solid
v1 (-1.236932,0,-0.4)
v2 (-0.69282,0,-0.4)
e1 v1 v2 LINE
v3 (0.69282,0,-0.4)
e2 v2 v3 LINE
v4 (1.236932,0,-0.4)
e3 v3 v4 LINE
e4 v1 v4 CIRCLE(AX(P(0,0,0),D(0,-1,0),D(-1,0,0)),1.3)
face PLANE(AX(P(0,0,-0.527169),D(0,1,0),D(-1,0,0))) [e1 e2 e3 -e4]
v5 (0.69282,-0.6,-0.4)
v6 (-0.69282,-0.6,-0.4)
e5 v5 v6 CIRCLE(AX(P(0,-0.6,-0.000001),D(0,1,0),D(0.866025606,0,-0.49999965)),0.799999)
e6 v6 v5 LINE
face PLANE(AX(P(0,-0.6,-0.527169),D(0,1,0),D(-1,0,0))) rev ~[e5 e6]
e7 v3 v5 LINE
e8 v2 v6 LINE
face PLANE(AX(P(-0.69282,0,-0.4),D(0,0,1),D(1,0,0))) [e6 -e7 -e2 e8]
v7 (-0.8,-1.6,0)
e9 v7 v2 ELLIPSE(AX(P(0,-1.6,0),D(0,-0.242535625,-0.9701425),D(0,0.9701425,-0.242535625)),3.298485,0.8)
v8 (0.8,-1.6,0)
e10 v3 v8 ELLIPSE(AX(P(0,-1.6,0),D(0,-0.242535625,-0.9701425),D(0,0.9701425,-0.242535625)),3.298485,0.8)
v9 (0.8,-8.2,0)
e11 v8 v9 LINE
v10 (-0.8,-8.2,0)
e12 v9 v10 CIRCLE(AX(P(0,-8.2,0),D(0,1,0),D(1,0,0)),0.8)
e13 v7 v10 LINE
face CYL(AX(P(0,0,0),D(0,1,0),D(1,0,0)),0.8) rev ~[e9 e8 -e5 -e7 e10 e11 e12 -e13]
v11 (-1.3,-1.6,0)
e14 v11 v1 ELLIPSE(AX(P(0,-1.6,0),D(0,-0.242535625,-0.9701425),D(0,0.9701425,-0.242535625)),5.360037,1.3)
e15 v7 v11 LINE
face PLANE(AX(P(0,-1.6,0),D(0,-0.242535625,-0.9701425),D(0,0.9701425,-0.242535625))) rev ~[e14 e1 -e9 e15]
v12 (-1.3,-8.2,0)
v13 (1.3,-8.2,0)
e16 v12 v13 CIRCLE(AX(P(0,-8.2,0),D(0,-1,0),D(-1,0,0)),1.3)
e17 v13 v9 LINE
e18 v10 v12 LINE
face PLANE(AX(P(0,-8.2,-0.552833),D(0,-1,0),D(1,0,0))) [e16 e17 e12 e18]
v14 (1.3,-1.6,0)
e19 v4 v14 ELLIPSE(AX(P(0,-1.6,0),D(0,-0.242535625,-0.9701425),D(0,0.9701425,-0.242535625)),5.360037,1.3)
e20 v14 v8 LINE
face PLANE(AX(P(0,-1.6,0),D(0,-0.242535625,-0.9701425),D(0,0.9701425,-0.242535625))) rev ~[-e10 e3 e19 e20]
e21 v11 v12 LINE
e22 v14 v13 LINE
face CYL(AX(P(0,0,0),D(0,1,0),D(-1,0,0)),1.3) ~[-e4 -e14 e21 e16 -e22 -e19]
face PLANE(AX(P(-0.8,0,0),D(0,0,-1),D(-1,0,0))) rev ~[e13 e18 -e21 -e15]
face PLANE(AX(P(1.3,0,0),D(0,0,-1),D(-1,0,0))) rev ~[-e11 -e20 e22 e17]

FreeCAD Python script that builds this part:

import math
import FreeCAD as App
import Part
import Sketcher
from FreeCAD import Vector
Q = App.Units.Quantity


def add_polygon(sketch, points):
    """Adds a closed chain of lines whose ends are joined by coincident constraints."""
    first, n = sketch.GeometryCount, len(points)
    for a, b in zip(points, points[1:] + points[:1]):
        sketch.addGeometry(Part.LineSegment(App.Vector(*a, 0), App.Vector(*b, 0)), False)
    for i in range(n):
        sketch.addConstraint(Sketcher.Constraint("Coincident", first + i, 2, first + (i + 1) % n, 1))

doc = App.newDocument("Part")
params = doc.addObject("Spreadsheet::Sheet", "Params")
for row, (alias, value) in enumerate([
    ("sketch1_radius", "0.8 mm"),
    ("sketch1_radius2", "1.3 mm"),
    ("pad1_length", "8.2 mm"),
    ("sketch2_width", "1.6 mm"),
    ("sketch2_height", "0.4 mm"),
    ("pocket1_length", "30 mm"),
    ("sketch3_radius", "0.799999 mm"),
    ("pad2_length", "0.6 mm"),
], start=1):
    params.set(f"A{row}", alias)
    params.set(f"B{row}", "=" + value)
    params.setAlias(f"B{row}", alias)

body = doc.addObject("PartDesign::Body", "Body")

sketch1 = body.newObject("Sketcher::SketchObject", "Sketch")
sketch1.AttachmentSupport = (doc.getObject("XZ_Plane"), [""])
sketch1.MapMode = "FlatFace"
sketch1.addGeometry([
    Part.LineSegment(Vector(1.3, 0, 0), Vector(0.8, 0, 0)),
    Part.ArcOfCircle(Part.Circle(Vector(0, 0, 0), Vector(0, 0, 1), 0.8), math.radians(180), math.radians(360)),
    Part.LineSegment(Vector(-0.8, 0, 0), Vector(-1.3, 0, 0)),
    Part.ArcOfCircle(Part.Circle(Vector(0, 0, 0), Vector(0, 0, 1), 1.3), math.radians(180), math.radians(360)),
], False)
sketch1.addConstraint([
    Sketcher.Constraint("Coincident", 0, 2, 1, 2),
    Sketcher.Constraint("Coincident", 1, 1, 2, 1),
    Sketcher.Constraint("Coincident", 2, 2, 3, 1),
    Sketcher.Constraint("Coincident", 3, 2, 0, 1),
    Sketcher.Constraint("Horizontal", 0),
    Sketcher.Constraint("Horizontal", 2),
    Sketcher.Constraint("Coincident", 1, 3, -1, 1),
    Sketcher.Constraint("Coincident", 3, 3, -1, 1),
    Sketcher.Constraint("PointOnObject", 0, 2, -1),
    Sketcher.Constraint("PointOnObject", 1, 1, -1),
    Sketcher.Constraint("Radius", 1, Q("0.8 mm")),
    Sketcher.Constraint("Radius", 3, Q("1.3 mm")),
])
sketch1.setExpression("Constraints[10]", "Params.sketch1_radius")
sketch1.setExpression("Constraints[11]", "Params.sketch1_radius2")
pad1 = body.newObject("PartDesign::Pad", "Pad")
pad1.Profile = sketch1
pad1.setExpression("Length", "Params.pad1_length")

sketch2 = body.newObject("Sketcher::SketchObject", "Sketch001")
sketch2.AttachmentSupport = (doc.getObject("YZ_Plane"), [""])
sketch2.MapMode = "FlatFace"
add_polygon(sketch2, [(-1.6, 0), (0, -0.4), (0, 0)])
sketch2.addConstraint([
    Sketcher.Constraint("Vertical", 1),
    Sketcher.Constraint("Horizontal", 2),
    Sketcher.Constraint("Coincident", 1, 2, -1, 1),
    Sketcher.Constraint("DistanceX", 2, 2, 2, 1, Q("1.6 mm")),
    Sketcher.Constraint("DistanceY", 1, 1, 1, 2, Q("0.4 mm")),
])
sketch2.setExpression("Constraints[6]", "Params.sketch2_width")
sketch2.setExpression("Constraints[7]", "Params.sketch2_height")
pocket1 = body.newObject("PartDesign::Pocket", "Pocket")
pocket1.Profile = sketch2
pocket1.setExpression("Length", "Params.pocket1_length")
pocket1.Midplane = True

sketch3 = body.newObject("Sketcher::SketchObject", "Sketch002")
sketch3.AttachmentSupport = (doc.getObject("XZ_Plane"), [""])
sketch3.MapMode = "FlatFace"
sketch3.addGeometry([
    Part.LineSegment(Vector(-0.7, -0.4, 0), Vector(0.7, -0.4, 0)),
    Part.ArcOfCircle(Part.Circle(Vector(0, 0, 0), Vector(0, 0, 1), 0.8), math.radians(-150), math.radians(-30)),
], False)
sketch3.addConstraint([
    Sketcher.Constraint("Coincident", 0, 1, 1, 1),
    Sketcher.Constraint("Coincident", 1, 2, 0, 2),
    Sketcher.Constraint("Horizontal", 0),
    Sketcher.Constraint("Coincident", 1, 3, -1, 1),
    Sketcher.Constraint("Radius", 1, Q("0.799999 mm")),
    Sketcher.Constraint("DistanceY", 0, 1, -1, 1, Q("0.4 mm")),
])
sketch3.setExpression("Constraints[4]", "Params.sketch3_radius")
pad2 = body.newObject("PartDesign::Pad", "Pad001")
pad2.Profile = sketch3
pad2.setExpression("Length", "Params.pad2_length")

doc.recompute()
